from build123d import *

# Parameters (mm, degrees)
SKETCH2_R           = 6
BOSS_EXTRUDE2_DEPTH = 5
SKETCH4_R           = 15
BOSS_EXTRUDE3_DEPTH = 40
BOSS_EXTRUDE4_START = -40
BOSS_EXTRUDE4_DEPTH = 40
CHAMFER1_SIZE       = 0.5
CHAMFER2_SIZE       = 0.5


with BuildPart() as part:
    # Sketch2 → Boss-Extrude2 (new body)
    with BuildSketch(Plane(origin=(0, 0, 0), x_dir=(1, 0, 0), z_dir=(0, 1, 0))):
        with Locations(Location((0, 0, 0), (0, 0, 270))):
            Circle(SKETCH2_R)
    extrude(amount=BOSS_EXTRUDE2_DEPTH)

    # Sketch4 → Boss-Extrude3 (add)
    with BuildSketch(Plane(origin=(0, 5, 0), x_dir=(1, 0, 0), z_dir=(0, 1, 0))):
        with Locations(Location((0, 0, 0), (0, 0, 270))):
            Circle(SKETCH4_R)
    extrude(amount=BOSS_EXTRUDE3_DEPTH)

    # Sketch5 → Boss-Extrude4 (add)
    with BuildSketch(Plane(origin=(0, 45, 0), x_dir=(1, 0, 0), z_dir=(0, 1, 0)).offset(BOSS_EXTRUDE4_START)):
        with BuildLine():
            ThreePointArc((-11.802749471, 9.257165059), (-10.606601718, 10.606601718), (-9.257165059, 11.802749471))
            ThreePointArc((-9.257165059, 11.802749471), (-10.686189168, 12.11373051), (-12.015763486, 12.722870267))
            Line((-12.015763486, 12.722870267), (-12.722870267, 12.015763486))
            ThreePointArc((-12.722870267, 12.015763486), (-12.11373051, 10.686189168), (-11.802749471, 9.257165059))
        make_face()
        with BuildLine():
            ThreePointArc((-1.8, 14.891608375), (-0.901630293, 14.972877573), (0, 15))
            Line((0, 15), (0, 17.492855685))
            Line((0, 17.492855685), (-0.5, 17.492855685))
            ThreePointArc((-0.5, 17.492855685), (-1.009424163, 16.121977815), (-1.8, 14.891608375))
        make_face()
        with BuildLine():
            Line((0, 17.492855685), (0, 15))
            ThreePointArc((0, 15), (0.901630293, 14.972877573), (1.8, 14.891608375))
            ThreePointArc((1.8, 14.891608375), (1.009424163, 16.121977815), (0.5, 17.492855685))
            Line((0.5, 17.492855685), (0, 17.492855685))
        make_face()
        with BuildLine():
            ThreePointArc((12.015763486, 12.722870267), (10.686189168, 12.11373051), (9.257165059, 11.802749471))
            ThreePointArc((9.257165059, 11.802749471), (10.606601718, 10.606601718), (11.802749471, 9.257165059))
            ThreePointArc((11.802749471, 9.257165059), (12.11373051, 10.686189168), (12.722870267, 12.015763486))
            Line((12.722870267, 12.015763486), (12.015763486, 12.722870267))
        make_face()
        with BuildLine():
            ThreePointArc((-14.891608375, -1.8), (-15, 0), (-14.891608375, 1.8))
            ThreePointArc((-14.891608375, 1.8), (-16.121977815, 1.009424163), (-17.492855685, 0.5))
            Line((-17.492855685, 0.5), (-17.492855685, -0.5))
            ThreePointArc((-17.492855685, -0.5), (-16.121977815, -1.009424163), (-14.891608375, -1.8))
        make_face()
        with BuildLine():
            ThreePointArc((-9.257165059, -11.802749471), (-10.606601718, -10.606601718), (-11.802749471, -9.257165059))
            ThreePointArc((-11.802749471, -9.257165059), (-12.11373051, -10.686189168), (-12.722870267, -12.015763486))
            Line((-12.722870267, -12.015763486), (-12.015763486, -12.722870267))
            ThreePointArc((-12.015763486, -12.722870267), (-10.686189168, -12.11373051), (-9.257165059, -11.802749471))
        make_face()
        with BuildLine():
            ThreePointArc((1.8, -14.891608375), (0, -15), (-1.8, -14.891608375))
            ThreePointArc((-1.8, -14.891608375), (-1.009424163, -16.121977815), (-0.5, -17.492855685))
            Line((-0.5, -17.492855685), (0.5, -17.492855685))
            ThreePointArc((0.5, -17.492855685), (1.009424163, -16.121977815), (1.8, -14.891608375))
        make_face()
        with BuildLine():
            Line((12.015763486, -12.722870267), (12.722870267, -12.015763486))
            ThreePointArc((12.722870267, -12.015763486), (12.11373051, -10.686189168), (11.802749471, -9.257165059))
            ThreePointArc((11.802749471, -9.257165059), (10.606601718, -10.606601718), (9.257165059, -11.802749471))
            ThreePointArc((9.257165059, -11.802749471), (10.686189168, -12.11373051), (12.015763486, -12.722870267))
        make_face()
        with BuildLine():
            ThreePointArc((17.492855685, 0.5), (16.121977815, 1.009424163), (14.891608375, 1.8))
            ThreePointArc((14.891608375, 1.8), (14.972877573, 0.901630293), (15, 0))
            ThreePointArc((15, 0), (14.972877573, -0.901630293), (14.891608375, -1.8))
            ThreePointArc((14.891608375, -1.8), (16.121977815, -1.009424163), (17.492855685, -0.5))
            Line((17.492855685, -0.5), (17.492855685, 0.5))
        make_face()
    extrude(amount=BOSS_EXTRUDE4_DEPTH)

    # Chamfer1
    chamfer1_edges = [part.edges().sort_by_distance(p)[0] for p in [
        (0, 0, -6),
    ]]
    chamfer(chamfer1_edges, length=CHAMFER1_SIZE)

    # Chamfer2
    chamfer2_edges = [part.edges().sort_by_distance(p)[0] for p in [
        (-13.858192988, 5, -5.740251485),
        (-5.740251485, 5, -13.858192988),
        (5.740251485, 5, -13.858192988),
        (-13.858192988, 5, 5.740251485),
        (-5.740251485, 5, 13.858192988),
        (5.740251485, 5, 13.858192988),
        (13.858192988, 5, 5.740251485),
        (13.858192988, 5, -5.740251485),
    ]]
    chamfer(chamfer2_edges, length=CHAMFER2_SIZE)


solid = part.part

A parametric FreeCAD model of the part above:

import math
import FreeCAD as App
import Part
import Sketcher
from FreeCAD import Vector


def edges_at(feature, points):
    """Names of the edges that pass closest to the given points."""
    edges = feature.Shape.Edges
    near = lambda p: min(range(len(edges)), key=lambda i: edges[i].distToShape(Part.Vertex(*p))[0])
    return sorted({f"Edge{near(p) + 1}" for p in points})

doc = App.newDocument("Part")
body = doc.addObject("PartDesign::Body", "Body")

# Sketch on XZ plane
sketch1 = doc.addObject("Sketcher::SketchObject", "Sketch")
body.addObject(sketch1)
sketch1.AttachmentSupport = (doc.XZ_Plane, [""])
sketch1.MapMode = "FlatFace"
sketch1.addGeometry(Part.Circle(Vector(0, 0, 0), Vector(0, 0, 1), 6), False)
sketch1.addConstraint(Sketcher.Constraint("Coincident", 0, 3, -1, 1))
sketch1.addConstraint(Sketcher.Constraint("Diameter", 0, 12.0))
pad1 = doc.addObject("PartDesign::Pad", "Pad")
body.addObject(pad1)
pad1.Profile = sketch1
pad1.Length = 5
pad1.Reversed = True

# Sketch on XZ plane
sketch2 = doc.addObject("Sketcher::SketchObject", "Sketch001")
body.addObject(sketch2)
sketch2.AttachmentSupport = (doc.XZ_Plane, [""])
sketch2.MapMode = "FlatFace"
sketch2.AttachmentOffset = App.Placement(Vector(0, 0, -5), App.Rotation())
sketch2.addGeometry(Part.Circle(Vector(0, 0, 0), Vector(0, 0, 1), 15), False)
sketch2.addConstraint(Sketcher.Constraint("Coincident", 0, 3, -1, 1))
sketch2.addConstraint(Sketcher.Constraint("Diameter", 0, 30.0))
pad2 = doc.addObject("PartDesign::Pad", "Pad001")
body.addObject(pad2)
pad2.Profile = sketch2
pad2.Length = 40
pad2.Reversed = True

# Sketch on XZ plane
sketch3 = doc.addObject("Sketcher::SketchObject", "Sketch002")
body.addObject(sketch3)
sketch3.AttachmentSupport = (doc.XZ_Plane, [""])
sketch3.MapMode = "FlatFace"
sketch3.AttachmentOffset = App.Placement(Vector(0, 0, -5), App.Rotation())
sketch3.addGeometry(Part.ArcOfCircle(Part.Circle(Vector(0, 0, 0), Vector(0, 0, 1), 15), math.radians(-141.89), math.radians(-128.11)), False)
sketch3.addGeometry(Part.ArcOfCircle(Part.Circle(Vector(-8.5, -18.6, 0), Vector(0, 0, 1), 6.8), math.radians(96), math.radians(121)), False)
sketch3.addGeometry(Part.LineSegment(Vector(-12, -12.7, 0), Vector(-12.7, -12, 0)), False)
sketch3.addGeometry(Part.ArcOfCircle(Part.Circle(Vector(-18.6, -8.5, 0), Vector(0, 0, 1), 6.8), math.radians(-31), math.radians(-6)), False)
sketch3.addGeometry(Part.ArcOfCircle(Part.Circle(Vector(0, 0, 0), Vector(0, 0, 1), 15), math.radians(-96.89), math.radians(-90)), False)
sketch3.addGeometry(Part.ArcOfCircle(Part.Circle(Vector(0, 0, 0), Vector(0, 0, 1), 15), math.radians(-90), math.radians(-83.11)), False)
sketch3.addGeometry(Part.ArcOfCircle(Part.Circle(Vector(7.1, -19.2, 0), Vector(0, 0, 1), 6.8), math.radians(141), math.radians(166)), False)
sketch3.addGeometry(Part.LineSegment(Vector(0.5, -17.5, 0), Vector(-0.5, -17.5, 0)), False)
sketch3.addGeometry(Part.ArcOfCircle(Part.Circle(Vector(-7.1, -19.2, 0), Vector(0, 0, 1), 6.8), math.radians(14), math.radians(39)), False)
sketch3.addGeometry(Part.ArcOfCircle(Part.Circle(Vector(8.5, -18.6, 0), Vector(0, 0, 1), 6.8), math.radians(59), math.radians(84)), False)
sketch3.addGeometry(Part.ArcOfCircle(Part.Circle(Vector(0, 0, 0), Vector(0, 0, 1), 15), math.radians(-51.89), math.radians(-38.11)), False)
sketch3.addGeometry(Part.ArcOfCircle(Part.Circle(Vector(18.6, -8.5, 0), Vector(0, 0, 1), 6.8), math.radians(-174), math.radians(-149)), False)
sketch3.addGeometry(Part.LineSegment(Vector(12.7, -12, 0), Vector(12, -12.7, 0)), False)
sketch3.addGeometry(Part.ArcOfCircle(Part.Circle(Vector(0, 0, 0), Vector(0, 0, 1), 15), math.radians(173.11), math.radians(186.89)), False)
sketch3.addGeometry(Part.ArcOfCircle(Part.Circle(Vector(-19.2, -7.1, 0), Vector(0, 0, 1), 6.8), math.radians(51), math.radians(76)), False)
sketch3.addGeometry(Part.LineSegment(Vector(-17.5, -0.5, 0), Vector(-17.5, 0.5, 0)), False)
sketch3.addGeometry(Part.ArcOfCircle(Part.Circle(Vector(-19.2, 7.1, 0), Vector(0, 0, 1), 6.8), math.radians(-76), math.radians(-51)), False)
sketch3.addGeometry(Part.ArcOfCircle(Part.Circle(Vector(0, 0, 0), Vector(0, 0, 1), 15), math.radians(128.11), math.radians(141.89)), False)
sketch3.addGeometry(Part.ArcOfCircle(Part.Circle(Vector(-18.6, 8.5, 0), Vector(0, 0, 1), 6.8), math.radians(6), math.radians(31)), False)
sketch3.addGeometry(Part.LineSegment(Vector(-12.7, 12, 0), Vector(-12, 12.7, 0)), False)
sketch3.addGeometry(Part.ArcOfCircle(Part.Circle(Vector(-8.5, 18.6, 0), Vector(0, 0, 1), 6.8), math.radians(-121), math.radians(-96)), False)
sketch3.addGeometry(Part.ArcOfCircle(Part.Circle(Vector(0, 0, 0), Vector(0, 0, 1), 15), math.radians(83.11), math.radians(96.89)), False)
sketch3.addGeometry(Part.ArcOfCircle(Part.Circle(Vector(-7.1, 19.2, 0), Vector(0, 0, 1), 6.8), math.radians(-39), math.radians(-14)), False)
sketch3.addGeometry(Part.LineSegment(Vector(-0.5, 17.5, 0), Vector(0.5, 17.5, 0)), False)
sketch3.addGeometry(Part.ArcOfCircle(Part.Circle(Vector(7.1, 19.2, 0), Vector(0, 0, 1), 6.8), math.radians(-166), math.radians(-141)), False)
sketch3.addGeometry(Part.LineSegment(Vector(12, 12.7, 0), Vector(12.7, 12, 0)), False)
sketch3.addGeometry(Part.ArcOfCircle(Part.Circle(Vector(18.6, 8.5, 0), Vector(0, 0, 1), 6.8), math.radians(149), math.radians(174)), False)
sketch3.addGeometry(Part.ArcOfCircle(Part.Circle(Vector(0, 0, 0), Vector(0, 0, 1), 15), math.radians(38.11), math.radians(51.89)), False)
sketch3.addGeometry(Part.ArcOfCircle(Part.Circle(Vector(8.5, 18.6, 0), Vector(0, 0, 1), 6.8), math.radians(-84), math.radians(-59)), False)
sketch3.addGeometry(Part.ArcOfCircle(Part.Circle(Vector(19.2, -7.1, 0), Vector(0, 0, 1), 6.8), math.radians(104), math.radians(129)), False)
sketch3.addGeometry(Part.ArcOfCircle(Part.Circle(Vector(0, 0, 0), Vector(0, 0, 1), 15), math.radians(-6.89), math.radians(0)), False)
sketch3.addGeometry(Part.ArcOfCircle(Part.Circle(Vector(0, 0, 0), Vector(0, 0, 1), 15), math.radians(0), math.radians(6.89)), False)
sketch3.addGeometry(Part.ArcOfCircle(Part.Circle(Vector(19.2, 7.1, 0), Vector(0, 0, 1), 6.8), math.radians(-129), math.radians(-104)), False)
sketch3.addGeometry(Part.LineSegment(Vector(17.5, 0.5, 0), Vector(17.5, -0.5, 0)), False)
sketch3.addConstraint(Sketcher.Constraint("Coincident", 0, 2, 1, 1))
sketch3.addConstraint(Sketcher.Constraint("Coincident", 1, 2, 2, 1))
sketch3.addConstraint(Sketcher.Constraint("Coincident", 2, 2, 3, 1))
sketch3.addConstraint(Sketcher.Constraint("Coincident", 3, 2, 0, 1))
sketch3.addConstraint(Sketcher.Constraint("Tangent", 4, 2, 5, 1))
sketch3.addConstraint(Sketcher.Constraint("Coincident", 5, 2, 6, 1))
sketch3.addConstraint(Sketcher.Constraint("Coincident", 6, 2, 7, 1))
sketch3.addConstraint(Sketcher.Constraint("Coincident", 7, 2, 8, 1))
sketch3.addConstraint(Sketcher.Constraint("Coincident", 8, 2, 4, 1))
sketch3.addConstraint(Sketcher.Constraint("Coincident", 9, 2, 10, 1))
sketch3.addConstraint(Sketcher.Constraint("Coincident", 10, 2, 11, 1))
sketch3.addConstraint(Sketcher.Constraint("Coincident", 11, 2, 12, 1))
sketch3.addConstraint(Sketcher.Constraint("Coincident", 12, 2, 9, 1))
sketch3.addConstraint(Sketcher.Constraint("Coincident", 13, 2, 14, 1))
sketch3.addConstraint(Sketcher.Constraint("Coincident", 14, 2, 15, 1))
sketch3.addConstraint(Sketcher.Constraint("Coincident", 15, 2, 16, 1))
sketch3.addConstraint(Sketcher.Constraint("Coincident", 16, 2, 13, 1))
sketch3.addConstraint(Sketcher.Constraint("Coincident", 17, 2, 18, 1))
sketch3.addConstraint(Sketcher.Constraint("Coincident", 18, 2, 19, 1))
sketch3.addConstraint(Sketcher.Constraint("Coincident", 19, 2, 20, 1))
sketch3.addConstraint(Sketcher.Constraint("Coincident", 20, 2, 17, 1))
sketch3.addConstraint(Sketcher.Constraint("Coincident", 21, 2, 22, 1))
sketch3.addConstraint(Sketcher.Constraint("Coincident", 22, 2, 23, 1))
sketch3.addConstraint(Sketcher.Constraint("Coincident", 23, 2, 24, 1))
sketch3.addConstraint(Sketcher.Constraint("Coincident", 24, 2, 21, 1))
sketch3.addConstraint(Sketcher.Constraint("Coincident", 25, 2, 26, 1))
sketch3.addConstraint(Sketcher.Constraint("Coincident", 26, 2, 27, 1))
sketch3.addConstraint(Sketcher.Constraint("Coincident", 27, 2, 28, 1))
sketch3.addConstraint(Sketcher.Constraint("Coincident", 28, 2, 25, 1))
sketch3.addConstraint(Sketcher.Constraint("Coincident", 29, 2, 30, 1))
sketch3.addConstraint(Sketcher.Constraint("Tangent", 30, 2, 31, 1))
sketch3.addConstraint(Sketcher.Constraint("Coincident", 31, 2, 32, 1))
sketch3.addConstraint(Sketcher.Constraint("Coincident", 32, 2, 33, 1))
sketch3.addConstraint(Sketcher.Constraint("Coincident", 33, 2, 29, 1))
sketch3.addConstraint(Sketcher.Constraint("Horizontal", 7))
sketch3.addConstraint(Sketcher.Constraint("Vertical", 15))
sketch3.addConstraint(Sketcher.Constraint("Horizontal", 23))
sketch3.addConstraint(Sketcher.Constraint("Vertical", 33))
sketch3.addConstraint(Sketcher.Constraint("Coincident", 0, 3, -1, 1))
sketch3.addConstraint(Sketcher.Constraint("Coincident", 4, 3, -1, 1))
sketch3.addConstraint(Sketcher.Constraint("Coincident", 10, 3, -1, 1))
sketch3.addConstraint(Sketcher.Constraint("Coincident", 13, 3, -1, 1))
sketch3.addConstraint(Sketcher.Constraint("Coincident", 17, 3, -1, 1))
sketch3.addConstraint(Sketcher.Constraint("Coincident", 21, 3, -1, 1))
sketch3.addConstraint(Sketcher.Constraint("Coincident", 27, 3, -1, 1))
sketch3.addConstraint(Sketcher.Constraint("Coincident", 30, 3, -1, 1))
sketch3.addConstraint(Sketcher.Constraint("Equal", 1, 3))
sketch3.addConstraint(Sketcher.Constraint("Equal", 0, 4))
sketch3.addConstraint(Sketcher.Constraint("Equal", 4, 5))
sketch3.addConstraint(Sketcher.Constraint("Equal", 3, 6))
sketch3.addConstraint(Sketcher.Constraint("Equal", 6, 8))
sketch3.addConstraint(Sketcher.Constraint("Equal", 8, 9))
sketch3.addConstraint(Sketcher.Constraint("Equal", 5, 10))
sketch3.addConstraint(Sketcher.Constraint("Equal", 9, 11))
sketch3.addConstraint(Sketcher.Constraint("Equal", 10, 13))
sketch3.addConstraint(Sketcher.Constraint("Equal", 11, 14))
sketch3.addConstraint(Sketcher.Constraint("Equal", 14, 16))
sketch3.addConstraint(Sketcher.Constraint("Equal", 13, 17))
sketch3.addConstraint(Sketcher.Constraint("Equal", 16, 18))
sketch3.addConstraint(Sketcher.Constraint("Equal", 18, 20))
sketch3.addConstraint(Sketcher.Constraint("Equal", 17, 21))
sketch3.addConstraint(Sketcher.Constraint("Equal", 20, 22))
sketch3.addConstraint(Sketcher.Constraint("Equal", 22, 24))
sketch3.addConstraint(Sketcher.Constraint("Equal", 24, 26))
sketch3.addConstraint(Sketcher.Constraint("Equal", 21, 27))
sketch3.addConstraint(Sketcher.Constraint("Equal", 26, 28))
sketch3.addConstraint(Sketcher.Constraint("Equal", 28, 29))
sketch3.addConstraint(Sketcher.Constraint("Equal", 27, 30))
sketch3.addConstraint(Sketcher.Constraint("Equal", 30, 31))
sketch3.addConstraint(Sketcher.Constraint("Equal", 29, 32))
sketch3.addConstraint(Sketcher.Constraint("Symmetric", 11, 3, 18, 3, -1, 1))
sketch3.addConstraint(Sketcher.Constraint("Symmetric", 9, 3, 20, 3, -1, 1))
sketch3.addConstraint(Sketcher.Constraint("Symmetric", 6, 3, 22, 3, -1, 1))
sketch3.addConstraint(Sketcher.Constraint("Symmetric", 8, 3, 24, 3, -1, 1))
sketch3.addConstraint(Sketcher.Constraint("Symmetric", 3, 3, 26, 3, -1, 1))
sketch3.addConstraint(Sketcher.Constraint("Symmetric", 1, 3, 28, 3, -1, 1))
sketch3.addConstraint(Sketcher.Constraint("Symmetric", 16, 3, 29, 3, -1, 1))
sketch3.addConstraint(Sketcher.Constraint("Symmetric", 14, 3, 32, 3, -1, 1))
sketch3.addConstraint(Sketcher.Constraint("Symmetric", 6, 3, 8, 3, -2))
sketch3.addConstraint(Sketcher.Constraint("Symmetric", 1, 3, 9, 3, -2))
sketch3.addConstraint(Sketcher.Constraint("Symmetric", 3, 3, 11, 3, -2))
sketch3.addConstraint(Sketcher.Constraint("Symmetric", 14, 3, 29, 3, -2))
sketch3.addConstraint(Sketcher.Constraint("PointOnObject", 4, 2, -2))
sketch3.addConstraint(Sketcher.Constraint("PointOnObject", 30, 2, -1))
sketch3.addConstraint(Sketcher.Constraint("Perpendicular", 2, 12))
sketch3.addConstraint(Sketcher.Constraint("Parallel", 12, 19))
sketch3.addConstraint(Sketcher.Constraint("Perpendicular", 19, 25))
sketch3.addConstraint(Sketcher.Constraint("Horizontal", 2, 2, 11, 2))
sketch3.addConstraint(Sketcher.Constraint("Horizontal", 1, 2, 12, 2))
sketch3.addConstraint(Sketcher.Constraint("Horizontal", 18, 2, 25, 2))
sketch3.addConstraint(Sketcher.Constraint("Horizontal", 15, 2, 32, 2))
sketch3.addConstraint(Sketcher.Constraint("Vertical", 2, 2, 18, 2))
sketch3.addConstraint(Sketcher.Constraint("Vertical", 7, 2, 22, 2))
sketch3.addConstraint(Sketcher.Constraint("Equal", 23, 15))
sketch3.addConstraint(Sketcher.Constraint("Radius", 0, 15.0))
sketch3.addConstraint(Sketcher.Constraint("DistanceX", 7, 2, 7, 1, 1.0))
sketch3.addConstraint(Sketcher.Constraint("Distance", 2, 1.0))
sketch3.addConstraint(Sketcher.Constraint("DistanceX", -1, 1, 5, 2, 1.8))
sketch3.addConstraint(Sketcher.Constraint("DistanceY", 13, 2, -1, 1, 1.8))
sketch3.addConstraint(Sketcher.Constraint("Radius", 1, 6.804873))
sketch3.addConstraint(Sketcher.Constraint("DistanceX", 1, 2, 0, 2, 2.758598))
sketch3.addConstraint(Sketcher.Constraint("DistanceY", 1, 2, 14, 3, 5.626399))
sketch3.addConstraint(Sketcher.Constraint("DistanceY", 2, 2, 3, 2, 2.758598))
sketch3.addConstraint(Sketcher.Constraint("DistanceX", 18, 2, 22, 3, 5.626399))
sketch3.addConstraint(Sketcher.Constraint("DistanceX", 1, 3, -1, 1, 8.533061))
sketch3.addConstraint(Sketcher.Constraint("DistanceY", 3, 3, -1, 1, 8.533061))
pad3 = doc.addObject("PartDesign::Pad", "Pad002")
body.addObject(pad3)
pad3.Profile = sketch3
pad3.Length = 40
pad3.Reversed = True
doc.recompute()

chamfer = doc.addObject("PartDesign::Chamfer", "Chamfer")
body.addObject(chamfer)
chamfer.Base = (pad3, edges_at(pad3, [(0, 0, -6)]))
chamfer.Size = 0.5
doc.recompute()

chamfer2 = doc.addObject("PartDesign::Chamfer", "Chamfer001")
body.addObject(chamfer2)
chamfer2.Base = (chamfer, edges_at(chamfer, [
    (-13.858, 5, -5.74),
    (-5.74, 5, -13.858),
    (5.74, 5, -13.858),
    (-13.858, 5, 5.74),
    (-5.74, 5, 13.858),
    (5.74, 5, 13.858),
    (13.858, 5, 5.74),
    (13.858, 5, -5.74),
]))
chamfer2.Size = 0.5

doc.recompute()
